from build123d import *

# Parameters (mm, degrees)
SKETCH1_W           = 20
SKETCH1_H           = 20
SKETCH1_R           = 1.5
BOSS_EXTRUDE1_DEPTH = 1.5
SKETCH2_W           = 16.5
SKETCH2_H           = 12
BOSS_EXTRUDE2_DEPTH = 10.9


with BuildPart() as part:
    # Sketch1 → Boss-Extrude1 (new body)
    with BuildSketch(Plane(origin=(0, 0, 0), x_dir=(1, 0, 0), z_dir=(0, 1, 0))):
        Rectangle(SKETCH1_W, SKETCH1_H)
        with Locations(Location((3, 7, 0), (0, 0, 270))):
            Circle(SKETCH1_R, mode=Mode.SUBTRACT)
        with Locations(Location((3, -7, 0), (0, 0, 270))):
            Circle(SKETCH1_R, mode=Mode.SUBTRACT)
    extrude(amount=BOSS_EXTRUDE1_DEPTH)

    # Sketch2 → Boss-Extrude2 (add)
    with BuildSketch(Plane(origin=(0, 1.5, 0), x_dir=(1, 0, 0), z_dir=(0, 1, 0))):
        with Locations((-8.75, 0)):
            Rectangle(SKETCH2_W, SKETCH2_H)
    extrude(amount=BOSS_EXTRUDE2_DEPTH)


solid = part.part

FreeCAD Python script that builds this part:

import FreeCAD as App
import Part
import Sketcher
from FreeCAD import Vector
Q = App.Units.Quantity

doc = App.newDocument("Part")
body = doc.addObject("PartDesign::Body", "Body")

# Sketch on XZ plane
sketch1 = body.newObject("Sketcher::SketchObject", "Sketch")
sketch1.AttachmentSupport = (doc.getObject("XZ_Plane"), [""])
sketch1.MapMode = "FlatFace"
sketch1.addGeometry([
    Part.LineSegment(Vector(-10, -10, 0), Vector(-10, 10, 0)),  # 0
    Part.LineSegment(Vector(-10, 10, 0), Vector(10, 10, 0)),  # 1
    Part.LineSegment(Vector(10, 10, 0), Vector(10, -10, 0)),  # 2
    Part.LineSegment(Vector(10, -10, 0), Vector(-10, -10, 0)),  # 3
    Part.Circle(Vector(3, 7, 0), Vector(0, 0, 1), 1.5),  # 4
    Part.Circle(Vector(3, -7, 0), Vector(0, 0, 1), 1.5),  # 5
], False)
sketch1.addConstraint([
    Sketcher.Constraint("Coincident", 0, 2, 1, 1),
    Sketcher.Constraint("Coincident", 1, 2, 2, 1),
    Sketcher.Constraint("Coincident", 2, 2, 3, 1),
    Sketcher.Constraint("Coincident", 3, 2, 0, 1),
    Sketcher.Constraint("Vertical", 0),
    Sketcher.Constraint("Horizontal", 1),
    Sketcher.Constraint("Vertical", 2),
    Sketcher.Constraint("Horizontal", 3),
    Sketcher.Constraint("Equal", 4, 5),
    Sketcher.Constraint("Symmetric", 0, 2, 2, 2, -1, 1),
    Sketcher.Constraint("Symmetric", 4, 3, 5, 3, -1),
    Sketcher.Constraint("Equal", 3, 0),
    Sketcher.Constraint("Diameter", 4, Q("3 mm")),
    Sketcher.Constraint("DistanceX", 1, 1, 1, 2, Q("20 mm")),
    Sketcher.Constraint("DistanceX", -1, 1, 4, 3, Q("3 mm")),
    Sketcher.Constraint("DistanceY", -1, 1, 4, 3, Q("7 mm")),
])
pad1 = body.newObject("PartDesign::Pad", "Pad")
pad1.Profile = sketch1
pad1.Length = 1.5
pad1.Reversed = True

# Sketch on XZ plane
sketch2 = body.newObject("Sketcher::SketchObject", "Sketch001")
sketch2.AttachmentSupport = (doc.getObject("XZ_Plane"), [""])
sketch2.MapMode = "FlatFace"
sketch2.AttachmentOffset = App.Placement(Vector(0, 0, -1.5), App.Rotation())
sketch2.addGeometry([
    Part.LineSegment(Vector(-17, -6, 0), Vector(-17, 6, 0)),
    Part.LineSegment(Vector(-17, 6, 0), Vector(0, 6, 0)),
    Part.LineSegment(Vector(0, 6, 0), Vector(0, -6, 0)),
    Part.LineSegment(Vector(0, -6, 0), Vector(-17, -6, 0)),
], False)
sketch2.addConstraint([
    Sketcher.Constraint("Coincident", 0, 2, 1, 1),
    Sketcher.Constraint("Coincident", 1, 2, 2, 1),
    Sketcher.Constraint("Coincident", 2, 2, 3, 1),
    Sketcher.Constraint("Coincident", 3, 2, 0, 1),
    Sketcher.Constraint("Vertical", 0),
    Sketcher.Constraint("Horizontal", 1),
    Sketcher.Constraint("Vertical", 2),
    Sketcher.Constraint("Horizontal", 3),
    Sketcher.Constraint("DistanceY", 0, 1, 0, 2, Q("12 mm")),
    Sketcher.Constraint("DistanceX", 1, 1, 1, 2, Q("16.5 mm")),
    Sketcher.Constraint("DistanceX", 0, 2, -1, 1, Q("17 mm")),
    Sketcher.Constraint("DistanceY", -1, 1, 0, 2, Q("6 mm")),
])
pad2 = body.newObject("PartDesign::Pad", "Pad001")
pad2.Profile = sketch2
pad2.Length = 10.9
pad2.Reversed = True

doc.recompute()
